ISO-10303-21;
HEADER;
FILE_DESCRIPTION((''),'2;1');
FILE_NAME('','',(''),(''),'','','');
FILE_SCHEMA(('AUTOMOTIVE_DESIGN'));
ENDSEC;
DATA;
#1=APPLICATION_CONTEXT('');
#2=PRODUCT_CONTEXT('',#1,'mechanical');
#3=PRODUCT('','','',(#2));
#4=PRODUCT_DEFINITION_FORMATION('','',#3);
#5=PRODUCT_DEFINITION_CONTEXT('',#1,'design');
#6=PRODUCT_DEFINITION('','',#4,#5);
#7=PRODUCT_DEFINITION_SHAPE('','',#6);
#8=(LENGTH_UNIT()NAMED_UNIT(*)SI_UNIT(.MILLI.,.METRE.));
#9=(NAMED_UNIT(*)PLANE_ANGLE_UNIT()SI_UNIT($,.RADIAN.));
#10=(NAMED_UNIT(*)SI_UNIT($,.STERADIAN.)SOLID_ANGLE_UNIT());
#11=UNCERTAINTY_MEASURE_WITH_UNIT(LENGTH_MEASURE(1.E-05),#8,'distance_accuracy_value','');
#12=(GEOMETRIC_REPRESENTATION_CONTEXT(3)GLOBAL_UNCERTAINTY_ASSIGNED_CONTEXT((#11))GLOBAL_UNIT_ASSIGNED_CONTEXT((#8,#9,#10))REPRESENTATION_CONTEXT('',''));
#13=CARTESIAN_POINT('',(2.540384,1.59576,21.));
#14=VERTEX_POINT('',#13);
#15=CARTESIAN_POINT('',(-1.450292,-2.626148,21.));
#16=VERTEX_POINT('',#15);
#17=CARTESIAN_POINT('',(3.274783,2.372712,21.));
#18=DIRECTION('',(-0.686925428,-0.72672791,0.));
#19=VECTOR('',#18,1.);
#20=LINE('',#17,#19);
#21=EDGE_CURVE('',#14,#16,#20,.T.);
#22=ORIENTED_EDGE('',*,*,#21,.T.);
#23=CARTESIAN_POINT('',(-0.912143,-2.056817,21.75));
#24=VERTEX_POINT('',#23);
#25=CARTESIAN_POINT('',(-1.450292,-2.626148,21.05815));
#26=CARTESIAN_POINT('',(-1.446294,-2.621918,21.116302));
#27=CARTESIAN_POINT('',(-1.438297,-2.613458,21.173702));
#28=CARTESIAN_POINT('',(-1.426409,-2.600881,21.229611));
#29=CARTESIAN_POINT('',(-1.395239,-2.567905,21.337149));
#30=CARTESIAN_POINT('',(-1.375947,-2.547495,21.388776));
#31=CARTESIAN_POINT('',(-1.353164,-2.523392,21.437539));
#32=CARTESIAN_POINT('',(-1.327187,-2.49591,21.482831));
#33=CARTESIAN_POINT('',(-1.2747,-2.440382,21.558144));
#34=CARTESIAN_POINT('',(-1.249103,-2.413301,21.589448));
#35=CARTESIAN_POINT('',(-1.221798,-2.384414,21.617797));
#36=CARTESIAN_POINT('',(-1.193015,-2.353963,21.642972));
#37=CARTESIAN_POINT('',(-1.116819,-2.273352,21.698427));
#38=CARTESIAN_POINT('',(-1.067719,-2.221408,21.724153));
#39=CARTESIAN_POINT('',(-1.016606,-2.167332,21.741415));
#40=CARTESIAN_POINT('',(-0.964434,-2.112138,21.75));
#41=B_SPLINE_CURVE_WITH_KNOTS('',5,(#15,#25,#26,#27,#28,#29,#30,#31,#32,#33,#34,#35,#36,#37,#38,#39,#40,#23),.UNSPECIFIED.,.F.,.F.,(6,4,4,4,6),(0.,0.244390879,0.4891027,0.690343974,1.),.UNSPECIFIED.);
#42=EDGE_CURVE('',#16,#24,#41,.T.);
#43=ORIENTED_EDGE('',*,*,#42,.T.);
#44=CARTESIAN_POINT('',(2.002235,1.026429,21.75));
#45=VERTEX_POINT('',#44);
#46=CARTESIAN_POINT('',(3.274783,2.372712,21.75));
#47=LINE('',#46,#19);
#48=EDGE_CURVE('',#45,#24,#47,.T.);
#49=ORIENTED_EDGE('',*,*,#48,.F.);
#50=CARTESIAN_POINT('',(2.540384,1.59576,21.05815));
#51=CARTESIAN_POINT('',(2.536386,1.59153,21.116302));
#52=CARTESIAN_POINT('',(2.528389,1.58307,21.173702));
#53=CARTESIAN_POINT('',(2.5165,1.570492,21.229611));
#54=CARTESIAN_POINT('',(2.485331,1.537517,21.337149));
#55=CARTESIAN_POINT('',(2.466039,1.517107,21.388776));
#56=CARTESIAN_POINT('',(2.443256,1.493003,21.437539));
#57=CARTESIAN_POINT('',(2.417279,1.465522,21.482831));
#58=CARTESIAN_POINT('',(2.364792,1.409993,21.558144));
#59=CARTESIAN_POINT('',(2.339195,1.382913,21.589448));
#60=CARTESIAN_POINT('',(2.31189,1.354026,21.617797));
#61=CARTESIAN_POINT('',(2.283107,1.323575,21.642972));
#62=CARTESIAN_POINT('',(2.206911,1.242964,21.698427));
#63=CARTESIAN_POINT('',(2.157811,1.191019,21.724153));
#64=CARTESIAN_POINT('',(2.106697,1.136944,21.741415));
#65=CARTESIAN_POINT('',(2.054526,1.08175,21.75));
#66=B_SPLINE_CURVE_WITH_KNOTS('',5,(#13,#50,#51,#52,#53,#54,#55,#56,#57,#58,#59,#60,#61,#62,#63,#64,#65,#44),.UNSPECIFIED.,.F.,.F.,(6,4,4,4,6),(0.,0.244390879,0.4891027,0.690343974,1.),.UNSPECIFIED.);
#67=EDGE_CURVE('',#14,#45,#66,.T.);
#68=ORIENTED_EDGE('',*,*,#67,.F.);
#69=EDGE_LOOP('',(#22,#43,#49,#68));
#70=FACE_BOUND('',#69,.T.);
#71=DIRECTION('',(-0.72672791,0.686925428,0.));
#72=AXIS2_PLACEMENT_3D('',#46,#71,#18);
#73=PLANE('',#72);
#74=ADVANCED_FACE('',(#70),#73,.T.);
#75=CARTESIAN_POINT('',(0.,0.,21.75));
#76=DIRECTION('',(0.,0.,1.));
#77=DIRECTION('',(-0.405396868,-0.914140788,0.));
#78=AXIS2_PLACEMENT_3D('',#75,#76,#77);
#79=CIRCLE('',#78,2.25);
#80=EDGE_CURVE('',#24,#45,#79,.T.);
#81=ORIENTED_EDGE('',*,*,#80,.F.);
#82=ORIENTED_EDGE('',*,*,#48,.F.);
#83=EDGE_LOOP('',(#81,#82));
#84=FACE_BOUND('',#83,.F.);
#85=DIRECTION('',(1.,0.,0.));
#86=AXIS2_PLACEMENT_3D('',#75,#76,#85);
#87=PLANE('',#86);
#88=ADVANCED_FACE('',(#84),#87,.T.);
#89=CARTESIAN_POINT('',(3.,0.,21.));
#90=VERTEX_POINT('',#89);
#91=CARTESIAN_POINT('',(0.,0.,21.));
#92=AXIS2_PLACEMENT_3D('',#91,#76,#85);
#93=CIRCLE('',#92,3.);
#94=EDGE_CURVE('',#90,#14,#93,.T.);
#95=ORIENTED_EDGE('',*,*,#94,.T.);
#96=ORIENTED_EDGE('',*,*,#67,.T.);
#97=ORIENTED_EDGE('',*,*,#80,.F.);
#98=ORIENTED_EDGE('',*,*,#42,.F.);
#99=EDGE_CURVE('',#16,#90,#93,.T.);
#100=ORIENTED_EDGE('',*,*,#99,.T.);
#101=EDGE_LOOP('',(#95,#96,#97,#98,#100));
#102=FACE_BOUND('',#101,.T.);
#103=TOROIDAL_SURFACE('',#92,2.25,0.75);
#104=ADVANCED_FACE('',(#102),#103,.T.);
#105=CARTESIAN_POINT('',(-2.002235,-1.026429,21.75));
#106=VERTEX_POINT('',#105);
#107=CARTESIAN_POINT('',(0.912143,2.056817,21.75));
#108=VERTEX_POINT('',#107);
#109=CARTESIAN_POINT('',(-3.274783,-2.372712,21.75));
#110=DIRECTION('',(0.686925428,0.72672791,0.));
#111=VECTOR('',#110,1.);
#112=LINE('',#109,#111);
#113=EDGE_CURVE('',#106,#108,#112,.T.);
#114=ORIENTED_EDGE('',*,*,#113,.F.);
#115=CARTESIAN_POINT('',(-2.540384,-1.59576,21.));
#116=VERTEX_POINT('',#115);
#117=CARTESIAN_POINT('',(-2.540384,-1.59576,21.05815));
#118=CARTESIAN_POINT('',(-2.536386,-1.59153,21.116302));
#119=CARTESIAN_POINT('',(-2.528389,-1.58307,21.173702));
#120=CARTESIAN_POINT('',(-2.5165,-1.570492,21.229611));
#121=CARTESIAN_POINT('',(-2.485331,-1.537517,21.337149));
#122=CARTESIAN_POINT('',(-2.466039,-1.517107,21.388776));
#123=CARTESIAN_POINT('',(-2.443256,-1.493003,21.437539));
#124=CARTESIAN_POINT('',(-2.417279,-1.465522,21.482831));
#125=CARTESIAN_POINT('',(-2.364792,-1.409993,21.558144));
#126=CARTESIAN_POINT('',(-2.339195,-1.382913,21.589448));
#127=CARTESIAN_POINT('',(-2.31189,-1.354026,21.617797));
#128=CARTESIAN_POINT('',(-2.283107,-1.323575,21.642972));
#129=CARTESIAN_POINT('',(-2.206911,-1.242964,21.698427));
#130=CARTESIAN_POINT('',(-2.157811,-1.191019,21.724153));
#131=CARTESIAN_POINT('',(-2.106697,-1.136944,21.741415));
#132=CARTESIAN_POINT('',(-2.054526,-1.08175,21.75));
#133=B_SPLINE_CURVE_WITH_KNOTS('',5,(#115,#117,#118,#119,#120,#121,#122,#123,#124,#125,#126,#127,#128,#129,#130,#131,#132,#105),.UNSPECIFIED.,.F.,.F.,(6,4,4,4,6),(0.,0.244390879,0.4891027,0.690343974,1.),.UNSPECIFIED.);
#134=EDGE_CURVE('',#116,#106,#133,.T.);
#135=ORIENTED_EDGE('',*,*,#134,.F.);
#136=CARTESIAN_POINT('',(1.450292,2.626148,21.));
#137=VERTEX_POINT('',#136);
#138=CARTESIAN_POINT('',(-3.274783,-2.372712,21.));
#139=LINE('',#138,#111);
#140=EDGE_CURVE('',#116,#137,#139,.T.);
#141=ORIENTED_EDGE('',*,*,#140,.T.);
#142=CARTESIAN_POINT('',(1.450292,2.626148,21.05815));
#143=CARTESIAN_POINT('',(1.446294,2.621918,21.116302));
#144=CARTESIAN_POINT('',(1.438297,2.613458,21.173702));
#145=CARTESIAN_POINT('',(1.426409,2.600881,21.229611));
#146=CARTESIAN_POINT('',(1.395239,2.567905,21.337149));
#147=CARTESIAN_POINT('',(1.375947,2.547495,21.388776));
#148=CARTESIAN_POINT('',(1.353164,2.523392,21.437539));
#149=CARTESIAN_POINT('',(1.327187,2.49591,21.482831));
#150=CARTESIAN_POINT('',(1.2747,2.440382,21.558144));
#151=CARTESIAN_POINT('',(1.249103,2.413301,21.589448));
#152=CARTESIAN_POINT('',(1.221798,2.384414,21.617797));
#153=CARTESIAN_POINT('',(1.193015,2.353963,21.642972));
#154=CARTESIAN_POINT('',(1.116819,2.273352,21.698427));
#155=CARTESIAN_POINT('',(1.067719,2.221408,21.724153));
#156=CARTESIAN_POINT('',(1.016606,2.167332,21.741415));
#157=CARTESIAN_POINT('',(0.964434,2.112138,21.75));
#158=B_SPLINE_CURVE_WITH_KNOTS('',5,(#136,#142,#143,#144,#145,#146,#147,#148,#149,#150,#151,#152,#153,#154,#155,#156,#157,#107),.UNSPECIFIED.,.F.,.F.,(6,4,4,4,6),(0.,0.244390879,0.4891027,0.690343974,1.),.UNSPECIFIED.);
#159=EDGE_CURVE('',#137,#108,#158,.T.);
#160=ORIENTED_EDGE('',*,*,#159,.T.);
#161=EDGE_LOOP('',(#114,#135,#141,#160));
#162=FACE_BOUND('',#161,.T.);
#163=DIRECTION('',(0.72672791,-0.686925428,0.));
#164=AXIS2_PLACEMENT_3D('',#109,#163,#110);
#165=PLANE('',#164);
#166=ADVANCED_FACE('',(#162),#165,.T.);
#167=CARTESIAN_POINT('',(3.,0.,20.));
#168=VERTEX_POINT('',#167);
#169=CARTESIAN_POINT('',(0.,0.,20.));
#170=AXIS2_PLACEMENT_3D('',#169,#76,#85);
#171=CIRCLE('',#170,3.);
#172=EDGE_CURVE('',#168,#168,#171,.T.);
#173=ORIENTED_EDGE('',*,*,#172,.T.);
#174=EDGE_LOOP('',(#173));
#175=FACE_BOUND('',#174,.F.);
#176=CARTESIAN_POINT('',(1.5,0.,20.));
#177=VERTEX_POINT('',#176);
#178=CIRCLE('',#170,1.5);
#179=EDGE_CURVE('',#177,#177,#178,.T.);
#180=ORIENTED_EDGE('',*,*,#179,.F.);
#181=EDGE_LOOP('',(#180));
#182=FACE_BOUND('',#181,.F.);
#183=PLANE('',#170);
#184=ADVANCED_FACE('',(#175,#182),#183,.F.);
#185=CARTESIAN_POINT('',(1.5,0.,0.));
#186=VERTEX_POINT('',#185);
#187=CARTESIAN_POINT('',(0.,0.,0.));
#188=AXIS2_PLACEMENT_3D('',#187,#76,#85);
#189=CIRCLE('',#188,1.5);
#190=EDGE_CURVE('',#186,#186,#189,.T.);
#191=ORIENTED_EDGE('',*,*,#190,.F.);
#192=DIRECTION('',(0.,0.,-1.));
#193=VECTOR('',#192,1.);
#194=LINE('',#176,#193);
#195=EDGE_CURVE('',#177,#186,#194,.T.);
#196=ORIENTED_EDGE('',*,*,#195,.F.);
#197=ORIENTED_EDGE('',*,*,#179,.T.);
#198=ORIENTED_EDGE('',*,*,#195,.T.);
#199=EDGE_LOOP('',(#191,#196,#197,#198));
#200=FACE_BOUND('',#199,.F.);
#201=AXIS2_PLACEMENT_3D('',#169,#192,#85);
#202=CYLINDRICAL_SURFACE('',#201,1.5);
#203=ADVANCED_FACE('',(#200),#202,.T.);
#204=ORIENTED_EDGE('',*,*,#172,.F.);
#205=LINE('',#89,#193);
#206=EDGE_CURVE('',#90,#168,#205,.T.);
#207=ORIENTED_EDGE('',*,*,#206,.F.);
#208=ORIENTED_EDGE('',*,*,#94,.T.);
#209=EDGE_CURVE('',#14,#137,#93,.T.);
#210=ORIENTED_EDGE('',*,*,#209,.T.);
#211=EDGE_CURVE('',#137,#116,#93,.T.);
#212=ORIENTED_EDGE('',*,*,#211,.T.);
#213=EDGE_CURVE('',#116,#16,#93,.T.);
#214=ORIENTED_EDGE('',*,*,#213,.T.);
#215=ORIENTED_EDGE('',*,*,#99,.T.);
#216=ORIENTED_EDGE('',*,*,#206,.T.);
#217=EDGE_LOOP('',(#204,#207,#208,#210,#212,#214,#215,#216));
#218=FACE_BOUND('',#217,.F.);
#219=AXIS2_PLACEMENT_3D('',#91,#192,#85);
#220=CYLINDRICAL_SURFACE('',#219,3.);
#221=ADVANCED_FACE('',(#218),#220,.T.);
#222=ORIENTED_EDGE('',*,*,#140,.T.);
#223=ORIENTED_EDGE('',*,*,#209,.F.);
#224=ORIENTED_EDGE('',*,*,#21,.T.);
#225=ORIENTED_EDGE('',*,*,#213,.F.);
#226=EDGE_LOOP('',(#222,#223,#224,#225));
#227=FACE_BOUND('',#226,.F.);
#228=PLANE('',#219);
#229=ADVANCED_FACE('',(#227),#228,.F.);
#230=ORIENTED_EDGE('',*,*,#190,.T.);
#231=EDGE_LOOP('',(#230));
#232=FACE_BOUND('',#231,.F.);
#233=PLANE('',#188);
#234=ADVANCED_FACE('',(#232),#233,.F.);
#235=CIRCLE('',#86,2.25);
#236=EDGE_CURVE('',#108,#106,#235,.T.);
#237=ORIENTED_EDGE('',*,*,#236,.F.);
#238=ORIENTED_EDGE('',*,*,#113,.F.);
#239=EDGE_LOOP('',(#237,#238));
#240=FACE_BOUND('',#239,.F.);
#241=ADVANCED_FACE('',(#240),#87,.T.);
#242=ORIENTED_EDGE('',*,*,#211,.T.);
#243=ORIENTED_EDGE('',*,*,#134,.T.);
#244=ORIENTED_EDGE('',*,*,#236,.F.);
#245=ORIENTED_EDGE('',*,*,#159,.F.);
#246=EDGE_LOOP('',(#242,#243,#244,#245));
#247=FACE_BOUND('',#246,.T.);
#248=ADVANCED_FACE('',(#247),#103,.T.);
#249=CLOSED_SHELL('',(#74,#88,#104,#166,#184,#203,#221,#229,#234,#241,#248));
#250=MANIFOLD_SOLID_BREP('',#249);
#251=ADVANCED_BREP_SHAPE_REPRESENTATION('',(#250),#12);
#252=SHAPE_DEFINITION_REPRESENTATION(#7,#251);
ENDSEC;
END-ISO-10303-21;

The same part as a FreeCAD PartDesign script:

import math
import FreeCAD as App
import Part
import Sketcher


def add_polygon(sketch, points):
    """Adds a closed chain of lines whose ends are joined by coincident constraints."""
    first, n = sketch.GeometryCount, len(points)
    for a, b in zip(points, points[1:] + points[:1]):
        sketch.addGeometry(Part.LineSegment(App.Vector(*a, 0), App.Vector(*b, 0)), False)
    for i in range(n):
        sketch.addConstraint(Sketcher.Constraint("Coincident", first + i, 2, first + (i + 1) % n, 1))

doc = App.newDocument("Part")
body = doc.addObject("PartDesign::Body", "Body")

# Sketch on XZ plane
sketch1 = body.newObject("Sketcher::SketchObject", "Sketch")
sketch1.AttachmentSupport = (doc.getObject("XZ_Plane"), [""])
sketch1.MapMode = "FlatFace"
sketch1.addGeometry(Part.LineSegment(App.Vector(0, 21.75, 0), App.Vector(0, 0, 0)), False)
sketch1.addGeometry(Part.LineSegment(App.Vector(0, 0, 0), App.Vector(1.5, 0, 0)), False)
sketch1.addGeometry(Part.LineSegment(App.Vector(1.5, 0, 0), App.Vector(1.5, 20, 0)), False)
sketch1.addGeometry(Part.LineSegment(App.Vector(1.5, 20, 0), App.Vector(3, 20, 0)), False)
sketch1.addGeometry(Part.LineSegment(App.Vector(3, 20, 0), App.Vector(3, 21, 0)), False)
sketch1.addGeometry(Part.ArcOfCircle(Part.Circle(App.Vector(2.25, 21, 0), App.Vector(0, 0, 1), 0.75), math.radians(0.000022), math.radians(89.999978)), False)
sketch1.addGeometry(Part.LineSegment(App.Vector(2.25, 21.75, 0), App.Vector(0, 21.75, 0)), False)
sketch1.addConstraint(Sketcher.Constraint("Coincident", 0, 2, 1, 1))
sketch1.addConstraint(Sketcher.Constraint("Coincident", 1, 2, 2, 1))
sketch1.addConstraint(Sketcher.Constraint("Coincident", 2, 2, 3, 1))
sketch1.addConstraint(Sketcher.Constraint("Coincident", 3, 2, 4, 1))
sketch1.addConstraint(Sketcher.Constraint("Tangent", 4, 2, 5, 1))
sketch1.addConstraint(Sketcher.Constraint("Tangent", 5, 2, 6, 1))
sketch1.addConstraint(Sketcher.Constraint("Coincident", 6, 2, 0, 1))
sketch1.addConstraint(Sketcher.Constraint("Vertical", 0))
sketch1.addConstraint(Sketcher.Constraint("Horizontal", 1))
sketch1.addConstraint(Sketcher.Constraint("Vertical", 2))
sketch1.addConstraint(Sketcher.Constraint("Horizontal", 3))
sketch1.addConstraint(Sketcher.Constraint("Vertical", 4))
sketch1.addConstraint(Sketcher.Constraint("Horizontal", 6))
sketch1.addConstraint(Sketcher.Constraint("Coincident", 0, 2, -1, 1))
sketch1.addConstraint(Sketcher.Constraint("Equal", 1, 3))
sketch1.addConstraint(Sketcher.Constraint("DistanceY", 2, 1, 2, 2, 20.0))
sketch1.addConstraint(Sketcher.Constraint("DistanceY", 4, 1, 4, 2, 1.0))
sketch1.addConstraint(Sketcher.Constraint("Radius", 5, 0.75))
sketch1.addConstraint(Sketcher.Constraint("DistanceX", 1, 1, 1, 2, 1.5))
revolution = body.newObject("PartDesign::Revolution", "Revolution")
revolution.Profile = sketch1
revolution.ReferenceAxis = (sketch1, ["V_Axis"])
revolution.Angle = 360

# Sketch on XY plane
sketch2 = body.newObject("Sketcher::SketchObject", "Sketch001")
sketch2.AttachmentSupport = (doc.getObject("XY_Plane"), [""])
sketch2.MapMode = "FlatFace"
sketch2.AttachmentOffset = App.Placement(App.Vector(0, 0, 21.75), App.Rotation())
add_polygon(sketch2, [(-2.184691, -3.4031), (3.274783, 2.372712), (2.184691, 3.4031), (-3.274783, -2.372712)])  # lines 0-3
sketch2.addConstraint(Sketcher.Constraint("Symmetric", 0, 2, 2, 2, -1, 1))
sketch2.addConstraint(Sketcher.Constraint("Symmetric", 1, 2, 3, 2, -1, 1))
sketch2.addConstraint(Sketcher.Constraint("Perpendicular", 0, 1))
sketch2.addConstraint(Sketcher.Constraint("Distance", 1, 1.5))
sketch2.addConstraint(Sketcher.Constraint("DistanceY", -1, 1, 1, 2, 3.4031))
sketch2.addConstraint(Sketcher.Constraint("DistanceY", -1, 1, 0, 2, 2.372712))
pocket1 = body.newObject("PartDesign::Pocket", "Pocket")
pocket1.Profile = sketch2
pocket1.Length = 0.75

doc.recompute()
